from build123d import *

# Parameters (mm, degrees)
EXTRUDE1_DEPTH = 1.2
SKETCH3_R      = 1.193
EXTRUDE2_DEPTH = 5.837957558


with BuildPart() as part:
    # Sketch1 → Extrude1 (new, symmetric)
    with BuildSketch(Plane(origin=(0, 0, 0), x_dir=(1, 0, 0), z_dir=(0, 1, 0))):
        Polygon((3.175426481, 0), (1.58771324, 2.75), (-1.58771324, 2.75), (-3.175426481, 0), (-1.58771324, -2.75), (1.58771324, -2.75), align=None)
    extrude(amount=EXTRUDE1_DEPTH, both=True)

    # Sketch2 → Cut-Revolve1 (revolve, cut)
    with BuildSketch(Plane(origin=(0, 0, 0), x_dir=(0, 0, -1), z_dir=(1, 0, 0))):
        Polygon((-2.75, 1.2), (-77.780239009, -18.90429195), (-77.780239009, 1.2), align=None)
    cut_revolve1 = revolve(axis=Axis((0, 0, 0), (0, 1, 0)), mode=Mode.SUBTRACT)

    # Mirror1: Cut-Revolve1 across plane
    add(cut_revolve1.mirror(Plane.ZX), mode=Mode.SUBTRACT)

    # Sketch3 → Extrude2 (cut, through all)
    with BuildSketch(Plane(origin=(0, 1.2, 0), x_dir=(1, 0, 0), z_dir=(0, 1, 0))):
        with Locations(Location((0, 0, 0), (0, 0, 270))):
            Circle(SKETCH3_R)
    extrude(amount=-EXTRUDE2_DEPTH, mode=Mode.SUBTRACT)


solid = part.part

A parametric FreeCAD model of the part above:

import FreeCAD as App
import Part
import Sketcher
from FreeCAD import Vector
Q = App.Units.Quantity


def add_polygon(sketch, points):
    """Adds a closed chain of lines whose ends are joined by coincident constraints."""
    first, n = sketch.GeometryCount, len(points)
    for a, b in zip(points, points[1:] + points[:1]):
        sketch.addGeometry(Part.LineSegment(App.Vector(*a, 0), App.Vector(*b, 0)), False)
    for i in range(n):
        sketch.addConstraint(Sketcher.Constraint("Coincident", first + i, 2, first + (i + 1) % n, 1))

doc = App.newDocument("Part")
body = doc.addObject("PartDesign::Body", "Body")

# Sketch on XZ plane
sketch1 = doc.addObject("Sketcher::SketchObject", "Sketch")
body.addObject(sketch1)
sketch1.AttachmentSupport = (doc.XZ_Plane, [""])
sketch1.MapMode = "FlatFace"
add_polygon(sketch1, [(3.2, 0), (1.6, -2.8), (-1.6, -2.8), (-3.2, 0), (-1.6, 2.8), (1.6, 2.8)])  # lines 0-5
sketch1.addConstraint([
    Sketcher.Constraint("Horizontal", 1),
    Sketcher.Constraint("Horizontal", 4),
    Sketcher.Constraint("Symmetric", 0, 2, 3, 2, -1, 1),
    Sketcher.Constraint("Symmetric", 2, 2, 5, 2, -1, 1),
    Sketcher.Constraint("PointOnObject", 2, 2, -1),
    Sketcher.Constraint("Parallel", 2, 5),
    Sketcher.Constraint("Vertical", 1, 2, 3, 2),
    Sketcher.Constraint("Angle", 0, Q("-120 deg")),
    Sketcher.Constraint("DistanceY", 1, 2, 3, 2, 5.5),
    Sketcher.Constraint("DistanceX", 1, 2, 1, 1, 3.175426),
])
pad1 = doc.addObject("PartDesign::Pad", "Pad")
body.addObject(pad1)
pad1.Profile = sketch1
pad1.Length = 2.4
pad1.Midplane = True

# Sketch on YZ plane
sketch2 = doc.addObject("Sketcher::SketchObject", "Sketch001")
body.addObject(sketch2)
sketch2.AttachmentSupport = (doc.YZ_Plane, [""])
sketch2.MapMode = "FlatFace"
add_polygon(sketch2, [(-19, 78), (1, 3), (1, 78)])  # lines 0-2
sketch2.addConstraint([
    Sketcher.Constraint("Vertical", 1),
    Sketcher.Constraint("Horizontal", 2),
    Sketcher.Constraint("Angle", 0, Q("-75 deg")),
    Sketcher.Constraint("DistanceX", -1, 1, 0, 2, 1.2),
    Sketcher.Constraint("DistanceY", -1, 1, 0, 2, 2.75),
    Sketcher.Constraint("DistanceX", 2, 2, 2, 1, 20.104292),
])
groove = doc.addObject("PartDesign::Groove", "Groove")
body.addObject(groove)
groove.Profile = sketch2
groove.ReferenceAxis = (sketch2, ["H_Axis"])
groove.Angle = 360
doc.recompute()

mirrored = doc.addObject("PartDesign::Mirrored", "Mirrored")
body.addObject(mirrored)
mirrored.Originals = [groove]
mirrored.MirrorPlane = (doc.XZ_Plane, [""])
body.Tip = mirrored

# Sketch on XZ plane
sketch3 = doc.addObject("Sketcher::SketchObject", "Sketch002")
body.addObject(sketch3)
sketch3.AttachmentSupport = (doc.XZ_Plane, [""])
sketch3.MapMode = "FlatFace"
sketch3.AttachmentOffset = App.Placement(Vector(0, 0, -1.2), App.Rotation())
sketch3.addGeometry(Part.Circle(Vector(0, 0, 0), Vector(0, 0, 1), 1.2), False)
sketch3.addConstraint([
    Sketcher.Constraint("Coincident", 0, 3, -1, 1),
    Sketcher.Constraint("Diameter", 0, 2.386),
])
pocket1 = doc.addObject("PartDesign::Pocket", "Pocket")
body.addObject(pocket1)
pocket1.Profile = sketch3
pocket1.Type = "ThroughAll"
pocket1.Reversed = True

doc.recompute()
